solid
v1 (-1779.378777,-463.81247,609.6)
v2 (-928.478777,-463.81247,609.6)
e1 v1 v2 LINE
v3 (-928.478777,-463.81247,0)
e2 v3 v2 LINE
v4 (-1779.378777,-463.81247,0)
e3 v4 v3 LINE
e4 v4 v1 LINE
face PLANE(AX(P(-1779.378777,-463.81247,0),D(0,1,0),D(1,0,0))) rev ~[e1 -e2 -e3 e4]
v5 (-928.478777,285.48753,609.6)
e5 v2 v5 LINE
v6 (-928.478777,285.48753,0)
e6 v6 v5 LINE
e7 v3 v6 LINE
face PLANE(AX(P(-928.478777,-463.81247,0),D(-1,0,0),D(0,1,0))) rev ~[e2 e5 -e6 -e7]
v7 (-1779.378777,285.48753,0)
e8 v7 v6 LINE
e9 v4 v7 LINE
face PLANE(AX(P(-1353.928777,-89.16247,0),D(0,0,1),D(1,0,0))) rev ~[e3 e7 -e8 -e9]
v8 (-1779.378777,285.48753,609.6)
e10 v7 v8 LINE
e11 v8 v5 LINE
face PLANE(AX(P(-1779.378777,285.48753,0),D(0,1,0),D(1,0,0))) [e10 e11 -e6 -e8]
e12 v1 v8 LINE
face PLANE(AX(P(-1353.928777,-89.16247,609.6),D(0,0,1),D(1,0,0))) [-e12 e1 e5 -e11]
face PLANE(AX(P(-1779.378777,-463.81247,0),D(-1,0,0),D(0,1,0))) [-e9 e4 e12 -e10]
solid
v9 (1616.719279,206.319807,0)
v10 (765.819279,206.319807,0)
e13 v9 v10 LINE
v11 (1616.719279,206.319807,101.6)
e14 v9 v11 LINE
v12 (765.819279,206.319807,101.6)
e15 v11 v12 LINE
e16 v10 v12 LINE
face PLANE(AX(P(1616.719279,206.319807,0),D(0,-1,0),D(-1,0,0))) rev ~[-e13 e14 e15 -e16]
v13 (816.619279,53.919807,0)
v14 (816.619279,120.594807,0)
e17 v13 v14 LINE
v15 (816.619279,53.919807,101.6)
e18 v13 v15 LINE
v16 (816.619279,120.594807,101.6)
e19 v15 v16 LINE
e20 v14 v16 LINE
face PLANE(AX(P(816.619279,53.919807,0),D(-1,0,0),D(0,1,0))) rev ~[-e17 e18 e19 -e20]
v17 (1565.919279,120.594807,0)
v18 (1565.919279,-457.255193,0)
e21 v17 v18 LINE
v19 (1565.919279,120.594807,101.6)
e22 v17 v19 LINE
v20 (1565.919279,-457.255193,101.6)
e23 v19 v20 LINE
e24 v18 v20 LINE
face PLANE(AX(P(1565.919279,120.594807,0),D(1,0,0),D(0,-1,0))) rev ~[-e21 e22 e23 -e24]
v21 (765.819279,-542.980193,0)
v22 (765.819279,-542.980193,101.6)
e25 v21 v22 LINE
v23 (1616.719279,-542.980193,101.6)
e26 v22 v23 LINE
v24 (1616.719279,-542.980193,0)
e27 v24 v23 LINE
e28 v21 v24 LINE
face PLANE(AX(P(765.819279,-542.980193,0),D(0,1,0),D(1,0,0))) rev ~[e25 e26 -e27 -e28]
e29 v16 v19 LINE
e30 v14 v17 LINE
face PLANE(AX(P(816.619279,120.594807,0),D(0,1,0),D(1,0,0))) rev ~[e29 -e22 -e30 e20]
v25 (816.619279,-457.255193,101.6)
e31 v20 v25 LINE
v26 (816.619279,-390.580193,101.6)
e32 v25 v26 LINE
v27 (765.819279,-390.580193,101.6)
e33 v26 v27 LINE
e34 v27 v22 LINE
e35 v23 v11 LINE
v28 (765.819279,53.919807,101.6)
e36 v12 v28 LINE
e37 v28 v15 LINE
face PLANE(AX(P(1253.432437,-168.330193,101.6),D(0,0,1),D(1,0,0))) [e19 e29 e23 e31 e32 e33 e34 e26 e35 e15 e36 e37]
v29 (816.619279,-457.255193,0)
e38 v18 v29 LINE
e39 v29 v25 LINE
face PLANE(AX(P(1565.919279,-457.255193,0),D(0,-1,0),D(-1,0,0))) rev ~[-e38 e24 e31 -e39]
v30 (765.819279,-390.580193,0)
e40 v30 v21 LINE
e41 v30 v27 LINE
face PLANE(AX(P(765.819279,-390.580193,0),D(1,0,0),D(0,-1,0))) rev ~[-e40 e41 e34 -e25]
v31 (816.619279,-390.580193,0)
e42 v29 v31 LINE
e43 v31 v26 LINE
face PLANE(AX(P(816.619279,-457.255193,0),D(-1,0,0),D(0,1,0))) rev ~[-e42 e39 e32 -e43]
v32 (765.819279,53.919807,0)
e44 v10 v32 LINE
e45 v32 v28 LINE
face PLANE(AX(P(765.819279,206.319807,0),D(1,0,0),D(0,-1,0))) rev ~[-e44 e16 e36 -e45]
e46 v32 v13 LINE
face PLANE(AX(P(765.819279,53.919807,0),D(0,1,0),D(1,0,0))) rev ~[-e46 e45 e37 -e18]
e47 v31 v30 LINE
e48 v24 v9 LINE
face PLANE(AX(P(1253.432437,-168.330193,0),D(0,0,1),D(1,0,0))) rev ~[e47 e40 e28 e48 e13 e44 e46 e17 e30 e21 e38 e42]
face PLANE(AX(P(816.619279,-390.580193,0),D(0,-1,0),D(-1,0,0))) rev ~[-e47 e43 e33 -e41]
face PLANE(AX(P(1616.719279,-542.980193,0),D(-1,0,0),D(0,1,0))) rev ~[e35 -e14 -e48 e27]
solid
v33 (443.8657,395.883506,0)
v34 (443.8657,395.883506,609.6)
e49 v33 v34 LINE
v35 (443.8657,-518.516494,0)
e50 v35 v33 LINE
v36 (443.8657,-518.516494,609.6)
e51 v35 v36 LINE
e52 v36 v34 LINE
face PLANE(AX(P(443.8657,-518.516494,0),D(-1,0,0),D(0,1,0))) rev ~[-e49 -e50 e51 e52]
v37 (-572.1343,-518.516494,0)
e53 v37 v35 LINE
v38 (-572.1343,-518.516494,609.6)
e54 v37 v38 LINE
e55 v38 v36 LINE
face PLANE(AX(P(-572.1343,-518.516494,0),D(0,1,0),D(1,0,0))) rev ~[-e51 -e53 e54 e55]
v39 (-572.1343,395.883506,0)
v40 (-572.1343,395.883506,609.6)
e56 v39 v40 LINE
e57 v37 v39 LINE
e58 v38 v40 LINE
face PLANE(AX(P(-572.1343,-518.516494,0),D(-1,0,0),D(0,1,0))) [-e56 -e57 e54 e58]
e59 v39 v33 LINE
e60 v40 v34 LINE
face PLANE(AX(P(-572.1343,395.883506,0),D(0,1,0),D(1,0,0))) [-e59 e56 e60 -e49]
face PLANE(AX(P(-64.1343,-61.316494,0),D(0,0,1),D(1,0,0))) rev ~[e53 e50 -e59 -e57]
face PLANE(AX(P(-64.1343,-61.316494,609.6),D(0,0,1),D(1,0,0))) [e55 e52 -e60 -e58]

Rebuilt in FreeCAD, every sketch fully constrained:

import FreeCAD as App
import Part
import Sketcher
from FreeCAD import Vector
Q = App.Units.Quantity


def add_polygon(sketch, points):
    """Adds a closed chain of lines whose ends are joined by coincident constraints."""
    first, n = sketch.GeometryCount, len(points)
    for a, b in zip(points, points[1:] + points[:1]):
        sketch.addGeometry(Part.LineSegment(App.Vector(*a, 0), App.Vector(*b, 0)), False)
    for i in range(n):
        sketch.addConstraint(Sketcher.Constraint("Coincident", first + i, 2, first + (i + 1) % n, 1))

doc = App.newDocument("Part")
params = doc.addObject("Spreadsheet::Sheet", "Params")
for row, (alias, value) in enumerate([
    ("sketch1_width", "40 in"),
    ("sketch1_height", "36 in"),
    ("pad1_length", "24 in"),
    ("sketch2_width", "33.5 in"),
    ("sketch2_height", "29.5 in"),
    ("pad2_length", "24 in"),
    ("sketch3_width", "2 in"),
    ("sketch3_height", "6 in"),
    ("sketch3_width2", "33.5 in"),
    ("sketch3_width3", "29.5 in"),
    ("sketch3_height2", "22.75 in"),
    ("pad3_length", "4 in"),
], start=1):
    params.set(f"A{row}", alias)
    params.set(f"B{row}", "=" + value)
    params.setAlias(f"B{row}", alias)

body = doc.addObject("PartDesign::Body", "Body")

sketch1 = doc.addObject("Sketcher::SketchObject", "Sketch")
body.addObject(sketch1)
sketch1.AttachmentSupport = (doc.XY_Plane, [""])
sketch1.MapMode = "FlatFace"
add_polygon(sketch1, [(-572, 396), (-572, -519), (444, -519), (444, 396)])
sketch1.addConstraint(Sketcher.Constraint("Vertical", 0))
sketch1.addConstraint(Sketcher.Constraint("Horizontal", 1))
sketch1.addConstraint(Sketcher.Constraint("Vertical", 2))
sketch1.addConstraint(Sketcher.Constraint("Horizontal", 3))
sketch1.addConstraint(Sketcher.Constraint("DistanceX", 1, 1, 1, 2, Q("40 in")))
sketch1.addConstraint(Sketcher.Constraint("DistanceY", 0, 2, 0, 1, Q("36 in")))
sketch1.addConstraint(Sketcher.Constraint("DistanceX", 0, 2, -1, 1, 572.1343))
sketch1.addConstraint(Sketcher.Constraint("DistanceY", 0, 2, -1, 1, 518.516494))
sketch1.setExpression("Constraints[8]", "Params.sketch1_width")
sketch1.setExpression("Constraints[9]", "Params.sketch1_height")
pad1 = doc.addObject("PartDesign::Pad", "Pad")
body.addObject(pad1)
pad1.Profile = sketch1
pad1.setExpression("Length", "Params.pad1_length")
body2 = doc.addObject("PartDesign::Body", "Body001")

sketch2 = doc.addObject("Sketcher::SketchObject", "Sketch001")
body2.addObject(sketch2)
sketch2.AttachmentSupport = (doc.getObject("XY_Plane001"), [""])
sketch2.MapMode = "FlatFace"
add_polygon(sketch2, [(-1779, 285), (-1779, -464), (-928, -464), (-928, 285)])
sketch2.addConstraint(Sketcher.Constraint("Vertical", 0))
sketch2.addConstraint(Sketcher.Constraint("Horizontal", 1))
sketch2.addConstraint(Sketcher.Constraint("Vertical", 2))
sketch2.addConstraint(Sketcher.Constraint("Horizontal", 3))
sketch2.addConstraint(Sketcher.Constraint("DistanceX", 1, 1, 1, 2, Q("33.5 in")))
sketch2.addConstraint(Sketcher.Constraint("DistanceY", 0, 2, 0, 1, Q("29.5 in")))
sketch2.addConstraint(Sketcher.Constraint("DistanceY", 0, 2, -1, 1, 463.81247))
sketch2.addConstraint(Sketcher.Constraint("DistanceX", 0, 2, -1, 1, 1779.378777))
sketch2.setExpression("Constraints[8]", "Params.sketch2_width")
sketch2.setExpression("Constraints[9]", "Params.sketch2_height")
pad2 = doc.addObject("PartDesign::Pad", "Pad001")
body2.addObject(pad2)
pad2.Profile = sketch2
pad2.setExpression("Length", "Params.pad2_length")
body3 = doc.addObject("PartDesign::Body", "Body002")

sketch3 = doc.addObject("Sketcher::SketchObject", "Sketch002")
body3.addObject(sketch3)
sketch3.AttachmentSupport = (doc.getObject("XY_Plane002"), [""])
sketch3.MapMode = "FlatFace"
add_polygon(sketch3, [(1617, 206), (766, 206), (766, 54), (817, 54), (817, 121), (1566, 121), (1566, -457), (817, -457), (817, -391), (766, -391), (766, -543), (1617, -543)])
sketch3.addConstraint(Sketcher.Constraint("Horizontal", 0))
sketch3.addConstraint(Sketcher.Constraint("Vertical", 1))
sketch3.addConstraint(Sketcher.Constraint("Horizontal", 2))
sketch3.addConstraint(Sketcher.Constraint("Vertical", 3))
sketch3.addConstraint(Sketcher.Constraint("Horizontal", 4))
sketch3.addConstraint(Sketcher.Constraint("Vertical", 5))
sketch3.addConstraint(Sketcher.Constraint("Horizontal", 6))
sketch3.addConstraint(Sketcher.Constraint("Vertical", 7))
sketch3.addConstraint(Sketcher.Constraint("Horizontal", 8))
sketch3.addConstraint(Sketcher.Constraint("Vertical", 9))
sketch3.addConstraint(Sketcher.Constraint("Horizontal", 10))
sketch3.addConstraint(Sketcher.Constraint("Vertical", 11))
sketch3.addConstraint(Sketcher.Constraint("Vertical", 3, 2, 6, 2))
sketch3.addConstraint(Sketcher.Constraint("Vertical", 1, 2, 8, 2))
sketch3.addConstraint(Sketcher.Constraint("Equal", 3, 7))
sketch3.addConstraint(Sketcher.Constraint("Equal", 1, 9))
sketch3.addConstraint(Sketcher.Constraint("Equal", 6, 11))
sketch3.addConstraint(Sketcher.Constraint("DistanceX", 2, 1, 2, 2, Q("2 in")))
sketch3.addConstraint(Sketcher.Constraint("DistanceY", 1, 2, 1, 1, Q("6 in")))
sketch3.addConstraint(Sketcher.Constraint("DistanceX", 0, 2, 0, 1, Q("33.5 in")))
sketch3.addConstraint(Sketcher.Constraint("DistanceX", 4, 1, 4, 2, Q("29.5 in")))
sketch3.addConstraint(Sketcher.Constraint("DistanceY", 5, 2, 5, 1, Q("22.75 in")))
sketch3.addConstraint(Sketcher.Constraint("DistanceX", -1, 1, 0, 2, 765.819279))
sketch3.addConstraint(Sketcher.Constraint("DistanceY", -1, 1, 0, 2, 206.319807))
sketch3.setExpression("Constraints[29]", "Params.sketch3_width")
sketch3.setExpression("Constraints[30]", "Params.sketch3_height")
sketch3.setExpression("Constraints[31]", "Params.sketch3_width2")
sketch3.setExpression("Constraints[32]", "Params.sketch3_width3")
sketch3.setExpression("Constraints[33]", "Params.sketch3_height2")
pad3 = doc.addObject("PartDesign::Pad", "Pad002")
body3.addObject(pad3)
pad3.Profile = sketch3
pad3.setExpression("Length", "Params.pad3_length")

doc.recompute()
